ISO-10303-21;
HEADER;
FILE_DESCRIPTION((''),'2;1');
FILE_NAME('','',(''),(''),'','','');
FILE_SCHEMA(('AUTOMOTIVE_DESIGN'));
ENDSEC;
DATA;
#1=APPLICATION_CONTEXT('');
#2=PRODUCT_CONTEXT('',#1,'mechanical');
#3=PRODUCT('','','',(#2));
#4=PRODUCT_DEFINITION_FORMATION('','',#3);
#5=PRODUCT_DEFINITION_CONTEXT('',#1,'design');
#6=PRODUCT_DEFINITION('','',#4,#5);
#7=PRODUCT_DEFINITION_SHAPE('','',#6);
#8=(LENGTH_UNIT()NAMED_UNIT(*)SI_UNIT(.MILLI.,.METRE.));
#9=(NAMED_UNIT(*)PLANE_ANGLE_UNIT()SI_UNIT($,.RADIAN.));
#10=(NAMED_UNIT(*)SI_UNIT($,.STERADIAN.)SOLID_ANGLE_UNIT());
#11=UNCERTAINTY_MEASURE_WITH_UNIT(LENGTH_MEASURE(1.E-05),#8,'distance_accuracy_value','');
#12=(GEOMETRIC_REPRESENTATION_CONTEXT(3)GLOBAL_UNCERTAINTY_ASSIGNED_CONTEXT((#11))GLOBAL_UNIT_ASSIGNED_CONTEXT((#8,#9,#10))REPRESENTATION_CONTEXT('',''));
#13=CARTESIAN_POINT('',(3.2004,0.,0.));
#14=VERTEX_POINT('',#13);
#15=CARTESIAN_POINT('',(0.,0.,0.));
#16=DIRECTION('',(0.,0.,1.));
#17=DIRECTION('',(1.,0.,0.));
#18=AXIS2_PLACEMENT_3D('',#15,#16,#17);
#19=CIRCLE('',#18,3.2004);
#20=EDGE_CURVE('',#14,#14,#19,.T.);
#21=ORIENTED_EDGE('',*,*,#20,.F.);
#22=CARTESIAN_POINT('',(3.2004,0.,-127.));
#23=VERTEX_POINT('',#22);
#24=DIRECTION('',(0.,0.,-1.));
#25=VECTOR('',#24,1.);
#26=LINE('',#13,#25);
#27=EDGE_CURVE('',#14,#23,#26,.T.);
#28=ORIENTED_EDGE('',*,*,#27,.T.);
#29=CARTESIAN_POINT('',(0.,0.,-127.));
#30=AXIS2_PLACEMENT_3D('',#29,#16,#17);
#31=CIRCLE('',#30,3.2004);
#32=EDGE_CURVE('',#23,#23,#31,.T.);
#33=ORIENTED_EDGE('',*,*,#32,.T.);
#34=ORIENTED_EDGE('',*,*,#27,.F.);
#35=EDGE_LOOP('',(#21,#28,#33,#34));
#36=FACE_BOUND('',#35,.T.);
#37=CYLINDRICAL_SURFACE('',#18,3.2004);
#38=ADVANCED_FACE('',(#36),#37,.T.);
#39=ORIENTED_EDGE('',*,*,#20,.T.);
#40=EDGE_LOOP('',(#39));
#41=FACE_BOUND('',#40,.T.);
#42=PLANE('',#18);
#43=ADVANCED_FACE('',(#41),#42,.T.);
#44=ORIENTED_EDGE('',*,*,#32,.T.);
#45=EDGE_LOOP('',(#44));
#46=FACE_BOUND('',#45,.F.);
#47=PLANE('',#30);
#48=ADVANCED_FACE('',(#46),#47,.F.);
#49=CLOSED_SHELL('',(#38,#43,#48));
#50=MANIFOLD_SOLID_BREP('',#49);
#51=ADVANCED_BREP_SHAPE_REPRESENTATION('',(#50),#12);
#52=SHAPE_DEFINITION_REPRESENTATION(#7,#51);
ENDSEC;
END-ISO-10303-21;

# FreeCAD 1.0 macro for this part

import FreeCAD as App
import Part
import Sketcher

V = App.Vector
Q = App.Units.Quantity

doc = App.newDocument("Part")
params = doc.addObject("Spreadsheet::Sheet", "Params")
for row, (alias, value) in enumerate([
    ("sketch1_diameter", "0.252 in"),
    ("pad1_length", "5 in"),
], start=1):
    params.set(f"A{row}", alias)
    params.set(f"B{row}", "=" + value)
    params.setAlias(f"B{row}", alias)

body = doc.addObject("PartDesign::Body", "Body")

# Sketch on XY plane
sketch1 = body.newObject("Sketcher::SketchObject", "Sketch")
sketch1.AttachmentSupport = (doc.getObject("XY_Plane"), [""])
sketch1.MapMode = "FlatFace"
sketch1.addGeometry(Part.Circle(V(0, 0, 0), V(0, 0, 1), 3.2), False)
sketch1.addConstraint([
    Sketcher.Constraint("Coincident", 0, 3, -1, 1),
    Sketcher.Constraint("Diameter", 0, Q("0.252 in")),
])
sketch1.setExpression("Constraints[1]", "Params.sketch1_diameter")
pad1 = body.newObject("PartDesign::Pad", "Pad")
pad1.Profile = sketch1
pad1.setExpression("Length", "Params.pad1_length")
pad1.Reversed = True

doc.recompute()
